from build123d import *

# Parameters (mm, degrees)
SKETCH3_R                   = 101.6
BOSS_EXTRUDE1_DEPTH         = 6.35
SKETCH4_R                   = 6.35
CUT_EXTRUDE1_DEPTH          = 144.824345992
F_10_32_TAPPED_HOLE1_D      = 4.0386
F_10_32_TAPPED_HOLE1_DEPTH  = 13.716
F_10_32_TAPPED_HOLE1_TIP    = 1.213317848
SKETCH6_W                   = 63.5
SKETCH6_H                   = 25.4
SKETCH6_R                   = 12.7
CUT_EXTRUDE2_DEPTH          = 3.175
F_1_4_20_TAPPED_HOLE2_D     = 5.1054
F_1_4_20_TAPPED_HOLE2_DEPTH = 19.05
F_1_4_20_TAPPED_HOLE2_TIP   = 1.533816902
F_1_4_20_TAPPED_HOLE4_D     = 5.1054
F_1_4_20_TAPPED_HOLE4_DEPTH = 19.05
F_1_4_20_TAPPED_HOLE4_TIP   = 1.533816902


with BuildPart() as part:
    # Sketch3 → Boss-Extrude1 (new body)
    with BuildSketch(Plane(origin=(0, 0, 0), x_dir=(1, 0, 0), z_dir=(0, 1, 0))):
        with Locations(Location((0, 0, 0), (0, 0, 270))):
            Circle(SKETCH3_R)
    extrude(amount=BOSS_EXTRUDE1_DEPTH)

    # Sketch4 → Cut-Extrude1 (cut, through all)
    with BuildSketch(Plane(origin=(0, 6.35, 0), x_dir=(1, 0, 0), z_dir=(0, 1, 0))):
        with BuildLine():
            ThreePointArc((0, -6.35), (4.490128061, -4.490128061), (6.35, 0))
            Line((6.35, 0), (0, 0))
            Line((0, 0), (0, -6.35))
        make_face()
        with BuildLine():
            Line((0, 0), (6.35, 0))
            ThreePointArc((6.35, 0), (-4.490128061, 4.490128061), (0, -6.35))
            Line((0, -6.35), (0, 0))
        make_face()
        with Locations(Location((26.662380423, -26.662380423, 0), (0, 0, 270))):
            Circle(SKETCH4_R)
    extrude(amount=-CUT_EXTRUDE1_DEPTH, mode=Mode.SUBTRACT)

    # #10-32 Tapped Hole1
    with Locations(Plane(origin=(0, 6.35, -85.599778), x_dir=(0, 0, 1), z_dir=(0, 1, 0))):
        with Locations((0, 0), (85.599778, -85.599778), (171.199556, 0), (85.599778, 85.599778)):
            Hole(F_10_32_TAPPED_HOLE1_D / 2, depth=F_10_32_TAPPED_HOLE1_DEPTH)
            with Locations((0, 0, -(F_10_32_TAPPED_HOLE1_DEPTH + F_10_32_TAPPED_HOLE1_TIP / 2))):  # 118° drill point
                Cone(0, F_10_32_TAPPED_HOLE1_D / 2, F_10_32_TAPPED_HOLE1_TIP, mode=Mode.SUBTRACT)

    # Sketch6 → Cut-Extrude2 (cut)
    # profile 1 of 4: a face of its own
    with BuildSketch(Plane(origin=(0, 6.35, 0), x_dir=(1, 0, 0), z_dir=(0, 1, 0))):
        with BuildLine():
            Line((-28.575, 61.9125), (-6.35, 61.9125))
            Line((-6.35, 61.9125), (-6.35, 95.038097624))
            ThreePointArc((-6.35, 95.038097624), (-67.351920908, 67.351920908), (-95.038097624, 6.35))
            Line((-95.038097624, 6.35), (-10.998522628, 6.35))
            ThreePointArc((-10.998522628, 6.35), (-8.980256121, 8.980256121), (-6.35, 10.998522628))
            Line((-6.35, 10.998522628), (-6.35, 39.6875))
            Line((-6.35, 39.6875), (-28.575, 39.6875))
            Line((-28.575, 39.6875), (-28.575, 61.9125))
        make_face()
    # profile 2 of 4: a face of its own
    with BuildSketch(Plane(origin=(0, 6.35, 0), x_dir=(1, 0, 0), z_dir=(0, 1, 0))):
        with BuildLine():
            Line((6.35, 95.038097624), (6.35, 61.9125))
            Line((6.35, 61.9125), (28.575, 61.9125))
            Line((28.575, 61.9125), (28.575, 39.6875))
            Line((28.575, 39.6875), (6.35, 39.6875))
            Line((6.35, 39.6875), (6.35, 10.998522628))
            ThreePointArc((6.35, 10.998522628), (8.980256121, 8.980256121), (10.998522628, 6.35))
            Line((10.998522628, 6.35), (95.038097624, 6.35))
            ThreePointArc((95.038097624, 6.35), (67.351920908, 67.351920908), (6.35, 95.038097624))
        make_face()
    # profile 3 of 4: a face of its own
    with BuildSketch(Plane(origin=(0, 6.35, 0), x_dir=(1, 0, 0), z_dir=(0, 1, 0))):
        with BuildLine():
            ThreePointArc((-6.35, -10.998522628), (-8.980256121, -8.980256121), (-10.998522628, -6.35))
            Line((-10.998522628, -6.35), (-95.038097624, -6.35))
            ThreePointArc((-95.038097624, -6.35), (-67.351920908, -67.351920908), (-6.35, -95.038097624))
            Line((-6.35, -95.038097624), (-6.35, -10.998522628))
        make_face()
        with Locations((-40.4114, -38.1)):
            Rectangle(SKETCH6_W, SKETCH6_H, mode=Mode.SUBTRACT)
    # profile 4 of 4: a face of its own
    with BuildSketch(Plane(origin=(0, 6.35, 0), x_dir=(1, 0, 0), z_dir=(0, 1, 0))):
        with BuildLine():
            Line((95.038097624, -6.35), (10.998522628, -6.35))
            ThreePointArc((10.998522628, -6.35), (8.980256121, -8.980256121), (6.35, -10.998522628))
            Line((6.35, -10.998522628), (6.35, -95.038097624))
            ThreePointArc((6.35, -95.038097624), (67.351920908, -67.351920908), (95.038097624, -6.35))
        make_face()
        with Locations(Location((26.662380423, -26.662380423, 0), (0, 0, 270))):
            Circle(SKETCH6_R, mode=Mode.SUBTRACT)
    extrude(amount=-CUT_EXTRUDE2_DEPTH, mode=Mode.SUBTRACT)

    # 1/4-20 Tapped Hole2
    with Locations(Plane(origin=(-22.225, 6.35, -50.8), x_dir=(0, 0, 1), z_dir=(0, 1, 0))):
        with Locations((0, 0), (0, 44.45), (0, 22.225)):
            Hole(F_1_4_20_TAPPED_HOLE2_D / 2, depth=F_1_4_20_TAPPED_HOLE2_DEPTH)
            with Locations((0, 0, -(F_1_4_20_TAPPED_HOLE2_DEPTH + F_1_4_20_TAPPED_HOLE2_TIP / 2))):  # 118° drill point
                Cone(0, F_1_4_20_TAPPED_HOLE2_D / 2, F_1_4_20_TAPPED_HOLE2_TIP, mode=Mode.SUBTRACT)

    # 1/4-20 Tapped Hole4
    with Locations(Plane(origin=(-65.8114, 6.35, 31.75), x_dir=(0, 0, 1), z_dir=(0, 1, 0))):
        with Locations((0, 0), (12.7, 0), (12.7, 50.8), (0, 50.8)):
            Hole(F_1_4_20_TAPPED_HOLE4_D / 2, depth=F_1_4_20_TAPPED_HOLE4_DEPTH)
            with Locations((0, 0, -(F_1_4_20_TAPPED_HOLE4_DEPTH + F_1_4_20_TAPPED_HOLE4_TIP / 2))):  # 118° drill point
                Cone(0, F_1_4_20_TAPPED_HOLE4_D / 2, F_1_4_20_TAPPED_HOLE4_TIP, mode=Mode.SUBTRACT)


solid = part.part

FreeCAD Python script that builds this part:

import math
import FreeCAD as App
import Part
import Sketcher

V = App.Vector
Q = App.Units.Quantity

doc = App.newDocument("Part")
body = doc.addObject("PartDesign::Body", "Body")

sketch1 = doc.addObject("Sketcher::SketchObject", "Sketch")
body.addObject(sketch1)
sketch1.AttachmentSupport = (doc.XZ_Plane, [""])
sketch1.MapMode = "FlatFace"
sketch1.addGeometry(Part.Circle(V(0, 0, 0), V(0, 0, 1), 102), False)
sketch1.addConstraint([
    Sketcher.Constraint("Coincident", 0, 3, -1, 1),
    Sketcher.Constraint("Diameter", 0, Q("8 in")),
])
pad1 = doc.addObject("PartDesign::Pad", "Pad")
body.addObject(pad1)
pad1.Profile = sketch1
pad1.Length = Q("0.25 in")
pad1.Reversed = True

sketch2 = doc.addObject("Sketcher::SketchObject", "Sketch001")
body.addObject(sketch2)
sketch2.AttachmentSupport = (doc.XZ_Plane, [""])
sketch2.MapMode = "FlatFace"
sketch2.AttachmentOffset = App.Placement(V(0, 0, -0.25 * 25.4), App.Rotation())
sketch2.addGeometry([
    Part.ArcOfCircle(Part.Circle(V(0, 0, 0), V(0, 0, 1), 6), math.radians(0), math.radians(90)),
    Part.ArcOfCircle(Part.Circle(V(0, 0, 0), V(0, 0, 1), 6), math.radians(90), math.radians(360)),
    Part.Circle(V(27, 27, 0), V(0, 0, 1), 6),
], False)
sketch2.addConstraint([
    Sketcher.Constraint("Tangent", 0, 1, 1, 2),
    Sketcher.Constraint("Coincident", 1, 1, 0, 2),
    Sketcher.Constraint("Coincident", 0, 3, -1, 1),
    Sketcher.Constraint("Equal", 1, 2),
    Sketcher.Constraint("PointOnObject", 0, 1, -1),
    Sketcher.Constraint("PointOnObject", 1, 1, -2),
    Sketcher.Constraint("Diameter", 2, Q("0.5 in")),
    Sketcher.Constraint("DistanceX", -1, 1, 2, 3, Q("1.0497 in")),
    Sketcher.Constraint("DistanceY", -1, 1, 2, 3, Q("1.0497 in")),
])
pocket1 = doc.addObject("PartDesign::Pocket", "Pocket")
body.addObject(pocket1)
pocket1.Profile = sketch2
pocket1.Type = "ThroughAll"
pocket1.Reversed = True

sketch3 = doc.addObject("Sketcher::SketchObject", "Sketch002")
body.addObject(sketch3)
sketch3.AttachmentSupport = (doc.XZ_Plane, [""])
sketch3.MapMode = "FlatFace"
sketch3.AttachmentOffset = App.Placement(V(0, 0, -0.25 * 25.4), App.Rotation())
sketch3.addGeometry([
    Part.Circle(V(0, -85.6, 0), V(0, 0, 1), 2),
    Part.Circle(V(-85.6, 0, 0), V(0, 0, 1), 2),
    Part.Circle(V(0, 85.6, 0), V(0, 0, 1), 2),
    Part.Circle(V(85.6, 0, 0), V(0, 0, 1), 2),
], False)
sketch3.addConstraint([
    Sketcher.Constraint("Equal", 0, 1),
    Sketcher.Constraint("Equal", 1, 2),
    Sketcher.Constraint("Equal", 2, 3),
    Sketcher.Constraint("Symmetric", 0, 3, 2, 3, -1, 1),
    Sketcher.Constraint("Symmetric", 1, 3, 3, 3, -1, 1),
    Sketcher.Constraint("PointOnObject", 0, 3, -2),
    Sketcher.Constraint("PointOnObject", 1, 3, -1),
    Sketcher.Constraint("Diameter", 0, Q("0.159 in")),
    Sketcher.Constraint("DistanceY", 0, 3, -1, 1, Q("85.599778 mm")),
    Sketcher.Constraint("DistanceX", 1, 3, -1, 1, Q("85.599778 mm")),
])
doc.recompute()
hole = doc.addObject("PartDesign::Hole", "Hole")
body.addObject(hole)
hole.Profile = sketch3
hole.ThreadType = "None"
hole.Diameter = Q("0.159 in")
hole.DepthType = "Dimension"
hole.Depth = Q("0.54 in")
hole.DrillPoint = "Angled"
hole.DrillPointAngle = 118
hole.Reversed = True

sketch4 = doc.addObject("Sketcher::SketchObject", "Sketch003")
body.addObject(sketch4)
sketch4.AttachmentSupport = (doc.XZ_Plane, [""])
sketch4.MapMode = "FlatFace"
sketch4.AttachmentOffset = App.Placement(V(0, 0, -0.25 * 25.4), App.Rotation())
sketch4.addGeometry([
    Part.LineSegment(V(-29, -62, 0), V(-6, -62, 0)),
    Part.LineSegment(V(-6, -62, 0), V(-6, -95, 0)),
    Part.ArcOfCircle(Part.Circle(V(0, 0, 0), V(0, 0, 1), 95), math.radians(-176), math.radians(-94)),
    Part.LineSegment(V(-95, -6, 0), V(-11, -6, 0)),
    Part.ArcOfCircle(Part.Circle(V(0, 0, 0), V(0, 0, 1), 13), math.radians(-150), math.radians(-120)),
    Part.LineSegment(V(-6, -11, 0), V(-6, -40, 0)),
    Part.LineSegment(V(-6, -40, 0), V(-29, -40, 0)),
    Part.LineSegment(V(-29, -40, 0), V(-29, -62, 0)),
    Part.LineSegment(V(6, -95, 0), V(6, -62, 0)),
    Part.LineSegment(V(6, -62, 0), V(29, -62, 0)),
    Part.LineSegment(V(29, -62, 0), V(29, -40, 0)),
    Part.LineSegment(V(29, -40, 0), V(6, -40, 0)),
    Part.LineSegment(V(6, -40, 0), V(6, -11, 0)),
    Part.ArcOfCircle(Part.Circle(V(0, 0, 0), V(0, 0, 1), 13), math.radians(-60), math.radians(-30)),
    Part.LineSegment(V(11, -6, 0), V(95, -6, 0)),
    Part.ArcOfCircle(Part.Circle(V(0, 0, 0), V(0, 0, 1), 95), math.radians(-86), math.radians(-4)),
    Part.ArcOfCircle(Part.Circle(V(0, 0, 0), V(0, 0, 1), 13), math.radians(120), math.radians(150)),
    Part.LineSegment(V(-11, 6, 0), V(-95, 6, 0)),
    Part.ArcOfCircle(Part.Circle(V(0, 0, 0), V(0, 0, 1), 95), math.radians(94), math.radians(176)),
    Part.LineSegment(V(-6, 95, 0), V(-6, 11, 0)),
    Part.LineSegment(V(-9, 51, 0), V(-72, 51, 0)),
    Part.LineSegment(V(-72, 51, 0), V(-72, 25, 0)),
    Part.LineSegment(V(-72, 25, 0), V(-9, 25, 0)),
    Part.LineSegment(V(-9, 25, 0), V(-9, 51, 0)),
    Part.LineSegment(V(95, 6, 0), V(11, 6, 0)),
    Part.ArcOfCircle(Part.Circle(V(0, 0, 0), V(0, 0, 1), 13), math.radians(30), math.radians(60)),
    Part.LineSegment(V(6, 11, 0), V(6, 95, 0)),
    Part.ArcOfCircle(Part.Circle(V(0, 0, 0), V(0, 0, 1), 95), math.radians(4), math.radians(86)),
    Part.Circle(V(27, 27, 0), V(0, 0, 1), 13),
], False)
sketch4.addConstraint([
    Sketcher.Constraint("Coincident", 0, 2, 1, 1),
    Sketcher.Constraint("Coincident", 1, 2, 2, 2),
    Sketcher.Constraint("Coincident", 2, 1, 3, 1),
    Sketcher.Constraint("Coincident", 3, 2, 4, 1),
    Sketcher.Constraint("Coincident", 4, 2, 5, 1),
    Sketcher.Constraint("Coincident", 5, 2, 6, 1),
    Sketcher.Constraint("Coincident", 6, 2, 7, 1),
    Sketcher.Constraint("Coincident", 7, 2, 0, 1),
    Sketcher.Constraint("Coincident", 8, 2, 9, 1),
    Sketcher.Constraint("Coincident", 9, 2, 10, 1),
    Sketcher.Constraint("Coincident", 10, 2, 11, 1),
    Sketcher.Constraint("Coincident", 11, 2, 12, 1),
    Sketcher.Constraint("Coincident", 12, 2, 13, 1),
    Sketcher.Constraint("Coincident", 13, 2, 14, 1),
    Sketcher.Constraint("Coincident", 14, 2, 15, 2),
    Sketcher.Constraint("Coincident", 15, 1, 8, 1),
    Sketcher.Constraint("Coincident", 16, 2, 17, 1),
    Sketcher.Constraint("Coincident", 17, 2, 18, 2),
    Sketcher.Constraint("Coincident", 18, 1, 19, 1),
    Sketcher.Constraint("Coincident", 19, 2, 16, 1),
    Sketcher.Constraint("Coincident", 20, 2, 21, 1),
    Sketcher.Constraint("Coincident", 21, 2, 22, 1),
    Sketcher.Constraint("Coincident", 22, 2, 23, 1),
    Sketcher.Constraint("Coincident", 23, 2, 20, 1),
    Sketcher.Constraint("Coincident", 24, 2, 25, 1),
    Sketcher.Constraint("Coincident", 25, 2, 26, 1),
    Sketcher.Constraint("Coincident", 26, 2, 27, 2),
    Sketcher.Constraint("Coincident", 27, 1, 24, 1),
    Sketcher.Constraint("Horizontal", 0),
    Sketcher.Constraint("Vertical", 1),
    Sketcher.Constraint("Horizontal", 3),
    Sketcher.Constraint("Vertical", 5),
    Sketcher.Constraint("Horizontal", 6),
    Sketcher.Constraint("Vertical", 7),
    Sketcher.Constraint("Vertical", 8),
    Sketcher.Constraint("Horizontal", 9),
    Sketcher.Constraint("Vertical", 10),
    Sketcher.Constraint("Horizontal", 11),
    Sketcher.Constraint("Vertical", 12),
    Sketcher.Constraint("Horizontal", 14),
    Sketcher.Constraint("Horizontal", 17),
    Sketcher.Constraint("Vertical", 19),
    Sketcher.Constraint("Horizontal", 20),
    Sketcher.Constraint("Vertical", 21),
    Sketcher.Constraint("Horizontal", 22),
    Sketcher.Constraint("Vertical", 23),
    Sketcher.Constraint("Horizontal", 24),
    Sketcher.Constraint("Vertical", 26),
    Sketcher.Constraint("Coincident", 2, 3, -1, 1),
    Sketcher.Constraint("Coincident", 4, 3, -1, 1),
    Sketcher.Constraint("Coincident", 13, 3, -1, 1),
    Sketcher.Constraint("Coincident", 15, 3, -1, 1),
    Sketcher.Constraint("Coincident", 16, 3, -1, 1),
    Sketcher.Constraint("Coincident", 18, 3, -1, 1),
    Sketcher.Constraint("Coincident", 25, 3, -1, 1),
    Sketcher.Constraint("Coincident", 27, 3, -1, 1),
    Sketcher.Constraint("Equal", 4, 13),
    Sketcher.Constraint("Equal", 2, 15),
    Sketcher.Constraint("Equal", 13, 16),
    Sketcher.Constraint("Equal", 15, 18),
    Sketcher.Constraint("Equal", 16, 25),
    Sketcher.Constraint("Equal", 18, 27),
    Sketcher.Constraint("Equal", 25, 28),
    Sketcher.Constraint("Symmetric", 0, 2, 8, 2, -2),
    Sketcher.Constraint("Symmetric", 6, 2, 10, 2, -2),
    Sketcher.Constraint("Horizontal", 4, 2, 12, 2),
    Sketcher.Constraint("Horizontal", 3, 2, 13, 2),
    Sketcher.Constraint("Horizontal", 17, 2, 24, 2),
    Sketcher.Constraint("Horizontal", 19, 2, 25, 2),
    Sketcher.Constraint("Vertical", 1, 2, 4, 2),
    Sketcher.Constraint("Vertical", 3, 2, 16, 2),
    Sketcher.Constraint("Vertical", 5, 2, 18, 1),
    Sketcher.Constraint("Equal", 11, 7),
    Sketcher.Constraint("Equal", 24, 19),
    Sketcher.Constraint("Diameter", 28, Q("1 in")),
    Sketcher.Constraint("DistanceY", 21, 2, 21, 1, Q("1 in")),
    Sketcher.Constraint("Radius", 2, Q("3.75 in")),
    Sketcher.Constraint("DistanceX", 20, 2, 20, 1, Q("2.5 in")),
    Sketcher.Constraint("DistanceY", -1, 1, 20, 2, Q("2 in")),
    Sketcher.Constraint("DistanceX", 0, 2, 8, 2, Q("0.5 in")),
    Sketcher.Constraint("DistanceX", 0, 1, 0, 2, Q("0.875 in")),
    Sketcher.Constraint("DistanceY", 0, 2, -1, 1, Q("2.4375 in")),
    Sketcher.Constraint("DistanceX", 20, 2, -1, 1, Q("2.841 in")),
    Sketcher.Constraint("DistanceX", -1, 1, 28, 3, Q("1.0497 in")),
    Sketcher.Constraint("DistanceY", -1, 1, 28, 3, Q("1.0497 in")),
])
pocket2 = doc.addObject("PartDesign::Pocket", "Pocket001")
body.addObject(pocket2)
pocket2.Profile = sketch4
pocket2.Length = Q("0.125 in")
pocket2.Reversed = True

sketch5 = doc.addObject("Sketcher::SketchObject", "Sketch004")
body.addObject(sketch5)
sketch5.AttachmentSupport = (doc.XZ_Plane, [""])
sketch5.MapMode = "FlatFace"
sketch5.AttachmentOffset = App.Placement(V(0, 0, -0.25 * 25.4), App.Rotation())
sketch5.addGeometry([
    Part.Circle(V(-22.2, -50.8, 0), V(0, 0, 1), 2.6),
    Part.Circle(V(22.2, -50.8, 0), V(0, 0, 1), 2.6),
    Part.Circle(V(0, -50.8, 0), V(0, 0, 1), 2.6),
], False)
sketch5.addConstraint([
    Sketcher.Constraint("Equal", 0, 1),
    Sketcher.Constraint("Equal", 1, 2),
    Sketcher.Constraint("Symmetric", 0, 3, 1, 3, -2),
    Sketcher.Constraint("PointOnObject", 2, 3, -2),
    Sketcher.Constraint("Horizontal", 1, 3, 2, 3),
    Sketcher.Constraint("Diameter", 0, Q("0.201 in")),
    Sketcher.Constraint("DistanceY", 0, 3, -1, 1, Q("2 in")),
    Sketcher.Constraint("DistanceX", 0, 3, 1, 3, Q("1.75 in")),
])
doc.recompute()
hole2 = doc.addObject("PartDesign::Hole", "Hole001")
body.addObject(hole2)
hole2.Profile = sketch5
hole2.ThreadType = "None"
hole2.Diameter = Q("0.201 in")
hole2.DepthType = "Dimension"
hole2.Depth = Q("0.75 in")
hole2.DrillPoint = "Angled"
hole2.DrillPointAngle = 118
hole2.Reversed = True

sketch6 = doc.addObject("Sketcher::SketchObject", "Sketch005")
body.addObject(sketch6)
sketch6.AttachmentSupport = (doc.XZ_Plane, [""])
sketch6.MapMode = "FlatFace"
sketch6.AttachmentOffset = App.Placement(V(0, 0, -0.25 * 25.4), App.Rotation())
sketch6.addGeometry([
    Part.Circle(V(-65.8, 31.8, 0), V(0, 0, 1), 2.6),
    Part.Circle(V(-65.8, 44.5, 0), V(0, 0, 1), 2.6),
    Part.Circle(V(-15, 44.5, 0), V(0, 0, 1), 2.6),
    Part.Circle(V(-15, 31.8, 0), V(0, 0, 1), 2.6),
], False)
sketch6.addConstraint([
    Sketcher.Constraint("Equal", 0, 1),
    Sketcher.Constraint("Equal", 1, 2),
    Sketcher.Constraint("Equal", 2, 3),
    Sketcher.Constraint("Horizontal", 1, 3, 2, 3),
    Sketcher.Constraint("Horizontal", 0, 3, 3, 3),
    Sketcher.Constraint("Vertical", 0, 3, 1, 3),
    Sketcher.Constraint("Vertical", 2, 3, 3, 3),
    Sketcher.Constraint("Diameter", 0, Q("0.201 in")),
    Sketcher.Constraint("DistanceX", 1, 3, 2, 3, Q("2 in")),
    Sketcher.Constraint("DistanceY", 0, 3, 1, 3, Q("0.5 in")),
    Sketcher.Constraint("DistanceY", -1, 1, 0, 3, Q("1.25 in")),
    Sketcher.Constraint("DistanceX", 0, 3, -1, 1, Q("2.591 in")),
])
doc.recompute()
hole3 = doc.addObject("PartDesign::Hole", "Hole002")
body.addObject(hole3)
hole3.Profile = sketch6
hole3.ThreadType = "None"
hole3.Diameter = Q("0.201 in")
hole3.DepthType = "Dimension"
hole3.Depth = Q("0.75 in")
hole3.DrillPoint = "Angled"
hole3.DrillPointAngle = 118
hole3.Reversed = True

doc.recompute()
